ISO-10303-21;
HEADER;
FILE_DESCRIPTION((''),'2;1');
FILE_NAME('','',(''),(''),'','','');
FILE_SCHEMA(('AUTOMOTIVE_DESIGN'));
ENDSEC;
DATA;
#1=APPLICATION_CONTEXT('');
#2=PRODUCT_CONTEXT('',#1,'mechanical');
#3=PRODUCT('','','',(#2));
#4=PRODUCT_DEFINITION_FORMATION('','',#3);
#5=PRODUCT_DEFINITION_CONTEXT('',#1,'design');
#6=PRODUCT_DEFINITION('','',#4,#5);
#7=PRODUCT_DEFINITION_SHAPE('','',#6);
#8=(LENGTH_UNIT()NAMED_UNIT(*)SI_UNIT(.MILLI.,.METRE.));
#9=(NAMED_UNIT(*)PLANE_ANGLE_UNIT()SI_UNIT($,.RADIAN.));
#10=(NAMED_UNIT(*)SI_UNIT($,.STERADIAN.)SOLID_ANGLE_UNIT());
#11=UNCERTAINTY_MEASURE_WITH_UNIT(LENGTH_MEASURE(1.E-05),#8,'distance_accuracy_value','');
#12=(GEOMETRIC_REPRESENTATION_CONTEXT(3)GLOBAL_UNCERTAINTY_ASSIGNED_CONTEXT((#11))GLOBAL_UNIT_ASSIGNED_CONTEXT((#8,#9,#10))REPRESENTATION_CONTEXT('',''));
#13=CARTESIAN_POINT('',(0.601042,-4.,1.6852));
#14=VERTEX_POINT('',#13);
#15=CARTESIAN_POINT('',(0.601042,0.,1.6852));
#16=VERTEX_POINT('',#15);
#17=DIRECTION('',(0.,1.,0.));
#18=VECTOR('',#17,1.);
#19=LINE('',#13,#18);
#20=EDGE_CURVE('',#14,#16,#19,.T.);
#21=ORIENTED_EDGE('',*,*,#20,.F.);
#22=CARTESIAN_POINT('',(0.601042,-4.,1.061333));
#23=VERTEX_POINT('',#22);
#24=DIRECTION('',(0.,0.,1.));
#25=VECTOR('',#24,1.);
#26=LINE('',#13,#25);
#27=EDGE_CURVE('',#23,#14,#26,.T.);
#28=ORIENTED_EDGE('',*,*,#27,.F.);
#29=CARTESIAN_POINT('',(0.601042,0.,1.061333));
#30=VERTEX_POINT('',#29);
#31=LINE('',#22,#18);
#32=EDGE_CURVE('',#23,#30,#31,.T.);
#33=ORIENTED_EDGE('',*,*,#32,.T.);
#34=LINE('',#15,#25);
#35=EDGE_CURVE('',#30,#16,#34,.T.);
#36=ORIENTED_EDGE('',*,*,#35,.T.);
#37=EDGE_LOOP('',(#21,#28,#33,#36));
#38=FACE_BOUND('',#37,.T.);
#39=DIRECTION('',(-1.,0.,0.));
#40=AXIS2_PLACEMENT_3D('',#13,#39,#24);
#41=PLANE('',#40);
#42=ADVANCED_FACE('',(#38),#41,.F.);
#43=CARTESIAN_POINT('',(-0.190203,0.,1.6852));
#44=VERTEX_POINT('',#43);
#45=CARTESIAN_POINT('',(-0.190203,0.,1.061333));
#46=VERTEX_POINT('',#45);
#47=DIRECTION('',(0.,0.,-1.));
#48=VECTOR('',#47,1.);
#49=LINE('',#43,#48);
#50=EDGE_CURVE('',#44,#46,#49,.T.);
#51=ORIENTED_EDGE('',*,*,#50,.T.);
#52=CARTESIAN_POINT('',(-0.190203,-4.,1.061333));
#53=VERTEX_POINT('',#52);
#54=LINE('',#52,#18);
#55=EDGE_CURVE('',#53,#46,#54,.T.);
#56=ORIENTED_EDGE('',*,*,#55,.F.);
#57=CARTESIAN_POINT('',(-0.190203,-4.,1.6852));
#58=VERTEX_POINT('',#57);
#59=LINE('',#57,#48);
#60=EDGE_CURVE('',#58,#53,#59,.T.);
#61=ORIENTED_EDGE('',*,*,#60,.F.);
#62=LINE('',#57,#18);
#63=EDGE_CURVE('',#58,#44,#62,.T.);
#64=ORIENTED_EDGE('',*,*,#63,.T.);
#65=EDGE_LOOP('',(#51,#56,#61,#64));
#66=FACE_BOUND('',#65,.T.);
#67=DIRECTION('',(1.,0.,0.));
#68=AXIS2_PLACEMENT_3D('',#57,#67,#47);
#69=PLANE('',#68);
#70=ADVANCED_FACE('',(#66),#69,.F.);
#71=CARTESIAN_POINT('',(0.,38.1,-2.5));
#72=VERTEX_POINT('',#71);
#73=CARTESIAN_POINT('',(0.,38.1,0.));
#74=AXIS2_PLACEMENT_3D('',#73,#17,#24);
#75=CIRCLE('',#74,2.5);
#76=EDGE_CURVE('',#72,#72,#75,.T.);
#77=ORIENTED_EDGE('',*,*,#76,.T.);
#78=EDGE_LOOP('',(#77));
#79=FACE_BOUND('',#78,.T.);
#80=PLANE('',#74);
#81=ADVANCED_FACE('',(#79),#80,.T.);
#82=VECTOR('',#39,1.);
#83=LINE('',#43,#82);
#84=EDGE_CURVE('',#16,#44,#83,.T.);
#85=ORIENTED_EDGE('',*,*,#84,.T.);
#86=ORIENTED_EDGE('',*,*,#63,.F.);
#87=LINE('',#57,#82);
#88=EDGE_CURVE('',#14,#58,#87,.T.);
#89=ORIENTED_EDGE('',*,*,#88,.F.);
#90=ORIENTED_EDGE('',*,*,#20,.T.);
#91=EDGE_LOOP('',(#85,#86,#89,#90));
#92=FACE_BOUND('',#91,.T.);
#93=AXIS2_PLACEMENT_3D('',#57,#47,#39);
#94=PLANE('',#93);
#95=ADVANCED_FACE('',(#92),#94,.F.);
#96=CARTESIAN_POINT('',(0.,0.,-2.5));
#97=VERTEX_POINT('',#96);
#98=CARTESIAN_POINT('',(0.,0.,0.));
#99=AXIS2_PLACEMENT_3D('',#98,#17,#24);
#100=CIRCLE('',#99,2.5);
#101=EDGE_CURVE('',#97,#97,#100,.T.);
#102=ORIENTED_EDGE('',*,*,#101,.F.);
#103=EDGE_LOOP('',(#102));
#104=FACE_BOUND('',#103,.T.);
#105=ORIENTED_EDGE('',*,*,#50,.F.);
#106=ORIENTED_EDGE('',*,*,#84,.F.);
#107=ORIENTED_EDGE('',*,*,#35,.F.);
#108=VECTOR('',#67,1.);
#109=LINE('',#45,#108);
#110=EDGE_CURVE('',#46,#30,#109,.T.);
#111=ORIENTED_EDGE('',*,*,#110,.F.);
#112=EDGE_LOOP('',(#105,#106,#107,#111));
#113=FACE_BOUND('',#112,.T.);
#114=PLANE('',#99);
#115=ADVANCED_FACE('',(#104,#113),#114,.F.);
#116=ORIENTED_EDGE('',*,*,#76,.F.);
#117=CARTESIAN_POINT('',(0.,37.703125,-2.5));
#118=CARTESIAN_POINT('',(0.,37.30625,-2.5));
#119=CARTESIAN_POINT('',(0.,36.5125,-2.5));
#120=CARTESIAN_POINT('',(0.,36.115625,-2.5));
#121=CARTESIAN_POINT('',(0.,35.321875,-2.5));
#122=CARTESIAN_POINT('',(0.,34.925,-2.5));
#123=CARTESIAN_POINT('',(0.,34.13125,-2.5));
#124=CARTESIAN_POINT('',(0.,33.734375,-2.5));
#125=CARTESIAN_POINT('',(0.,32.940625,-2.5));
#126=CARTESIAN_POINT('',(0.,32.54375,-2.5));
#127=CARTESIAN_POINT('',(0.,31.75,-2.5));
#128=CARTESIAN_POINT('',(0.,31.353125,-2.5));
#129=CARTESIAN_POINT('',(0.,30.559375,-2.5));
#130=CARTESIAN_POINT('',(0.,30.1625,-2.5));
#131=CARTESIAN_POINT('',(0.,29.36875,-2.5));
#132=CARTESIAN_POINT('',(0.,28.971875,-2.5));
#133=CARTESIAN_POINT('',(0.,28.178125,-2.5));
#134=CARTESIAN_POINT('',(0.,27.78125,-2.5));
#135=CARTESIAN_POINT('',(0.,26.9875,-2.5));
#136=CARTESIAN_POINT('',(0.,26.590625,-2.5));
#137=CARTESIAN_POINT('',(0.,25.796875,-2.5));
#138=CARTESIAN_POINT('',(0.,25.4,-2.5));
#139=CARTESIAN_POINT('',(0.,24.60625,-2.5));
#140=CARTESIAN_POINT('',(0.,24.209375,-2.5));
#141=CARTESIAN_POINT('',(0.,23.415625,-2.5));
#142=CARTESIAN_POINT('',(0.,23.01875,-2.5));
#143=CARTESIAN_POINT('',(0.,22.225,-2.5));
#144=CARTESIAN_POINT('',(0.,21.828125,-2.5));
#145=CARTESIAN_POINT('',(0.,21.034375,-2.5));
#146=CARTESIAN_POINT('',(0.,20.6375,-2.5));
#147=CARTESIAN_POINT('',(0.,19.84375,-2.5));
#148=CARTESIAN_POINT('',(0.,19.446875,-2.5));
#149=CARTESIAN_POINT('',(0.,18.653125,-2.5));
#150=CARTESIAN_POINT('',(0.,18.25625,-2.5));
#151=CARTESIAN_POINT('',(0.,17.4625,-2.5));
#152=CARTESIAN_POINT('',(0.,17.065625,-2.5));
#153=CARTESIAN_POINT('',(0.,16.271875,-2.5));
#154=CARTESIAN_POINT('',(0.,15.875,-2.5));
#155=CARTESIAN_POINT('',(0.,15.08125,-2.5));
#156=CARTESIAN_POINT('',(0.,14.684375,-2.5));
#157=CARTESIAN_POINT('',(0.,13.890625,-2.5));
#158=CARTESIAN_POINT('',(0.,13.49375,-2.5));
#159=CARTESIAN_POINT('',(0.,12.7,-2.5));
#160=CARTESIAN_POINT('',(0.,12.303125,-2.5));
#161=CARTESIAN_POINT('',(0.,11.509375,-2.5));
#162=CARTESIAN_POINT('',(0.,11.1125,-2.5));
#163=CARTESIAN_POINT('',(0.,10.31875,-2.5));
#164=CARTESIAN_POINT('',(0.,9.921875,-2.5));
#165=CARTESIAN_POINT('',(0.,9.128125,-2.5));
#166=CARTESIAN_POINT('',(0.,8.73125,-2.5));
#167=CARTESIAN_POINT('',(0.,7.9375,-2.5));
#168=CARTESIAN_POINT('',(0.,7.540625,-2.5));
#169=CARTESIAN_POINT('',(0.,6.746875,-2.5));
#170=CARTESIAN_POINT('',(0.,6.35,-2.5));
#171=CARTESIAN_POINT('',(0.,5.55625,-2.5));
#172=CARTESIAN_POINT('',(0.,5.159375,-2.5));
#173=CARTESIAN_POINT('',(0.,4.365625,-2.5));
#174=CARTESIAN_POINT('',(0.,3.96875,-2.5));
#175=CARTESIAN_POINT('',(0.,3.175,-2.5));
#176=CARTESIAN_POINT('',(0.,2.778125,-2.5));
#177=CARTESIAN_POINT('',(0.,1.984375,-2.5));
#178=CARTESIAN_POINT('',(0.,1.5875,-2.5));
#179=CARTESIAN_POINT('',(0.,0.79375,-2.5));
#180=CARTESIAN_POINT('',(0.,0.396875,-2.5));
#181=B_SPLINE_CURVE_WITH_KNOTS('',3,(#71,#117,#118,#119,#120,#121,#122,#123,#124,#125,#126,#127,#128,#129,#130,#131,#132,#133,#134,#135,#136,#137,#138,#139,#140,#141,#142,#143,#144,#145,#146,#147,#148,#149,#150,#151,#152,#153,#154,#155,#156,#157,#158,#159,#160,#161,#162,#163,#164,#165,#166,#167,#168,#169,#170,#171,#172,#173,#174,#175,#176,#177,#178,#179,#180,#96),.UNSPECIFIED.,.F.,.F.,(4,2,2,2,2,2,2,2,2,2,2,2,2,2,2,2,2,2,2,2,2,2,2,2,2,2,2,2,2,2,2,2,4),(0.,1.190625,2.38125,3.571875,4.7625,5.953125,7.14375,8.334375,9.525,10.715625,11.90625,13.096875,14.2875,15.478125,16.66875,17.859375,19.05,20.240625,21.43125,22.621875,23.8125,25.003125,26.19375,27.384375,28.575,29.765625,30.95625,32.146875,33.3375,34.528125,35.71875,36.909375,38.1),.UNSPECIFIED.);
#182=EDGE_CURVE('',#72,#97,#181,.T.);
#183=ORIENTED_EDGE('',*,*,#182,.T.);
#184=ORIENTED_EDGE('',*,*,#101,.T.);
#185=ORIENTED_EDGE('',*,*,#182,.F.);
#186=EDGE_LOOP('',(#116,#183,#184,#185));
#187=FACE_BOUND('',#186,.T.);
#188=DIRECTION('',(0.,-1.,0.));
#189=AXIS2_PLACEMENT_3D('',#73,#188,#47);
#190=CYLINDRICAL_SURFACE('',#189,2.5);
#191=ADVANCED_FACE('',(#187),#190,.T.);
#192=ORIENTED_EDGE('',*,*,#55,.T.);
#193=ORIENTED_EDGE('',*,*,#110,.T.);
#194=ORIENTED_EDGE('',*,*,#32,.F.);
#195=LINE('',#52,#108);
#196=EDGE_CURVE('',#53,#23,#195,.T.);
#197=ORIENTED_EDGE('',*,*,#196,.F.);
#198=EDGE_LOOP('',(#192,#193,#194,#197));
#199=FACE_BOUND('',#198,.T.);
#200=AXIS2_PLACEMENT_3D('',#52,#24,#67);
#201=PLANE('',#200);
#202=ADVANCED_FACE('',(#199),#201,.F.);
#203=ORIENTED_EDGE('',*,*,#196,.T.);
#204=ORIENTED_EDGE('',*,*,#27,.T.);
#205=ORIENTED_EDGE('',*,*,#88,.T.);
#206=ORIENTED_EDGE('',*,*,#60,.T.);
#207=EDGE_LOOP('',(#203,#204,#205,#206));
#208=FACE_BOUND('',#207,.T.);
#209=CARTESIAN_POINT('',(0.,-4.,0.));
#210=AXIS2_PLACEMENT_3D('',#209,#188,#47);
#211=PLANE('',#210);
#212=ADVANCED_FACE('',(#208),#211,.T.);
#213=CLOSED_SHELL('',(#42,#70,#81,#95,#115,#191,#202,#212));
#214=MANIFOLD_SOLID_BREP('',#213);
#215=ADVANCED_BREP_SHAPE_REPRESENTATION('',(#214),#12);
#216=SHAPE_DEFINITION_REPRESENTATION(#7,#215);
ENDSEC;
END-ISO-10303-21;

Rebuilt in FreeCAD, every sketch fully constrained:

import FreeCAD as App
import Part
import Sketcher
from FreeCAD import Vector
Q = App.Units.Quantity

doc = App.newDocument("Part")
body = doc.addObject("PartDesign::Body", "Body")

# Sketch on XZ plane
sketch1 = body.newObject("Sketcher::SketchObject", "Sketch")
sketch1.AttachmentSupport = (doc.getObject("XZ_Plane"), [""])
sketch1.MapMode = "FlatFace"
sketch1.addGeometry(Part.Circle(Vector(0, 0, 0), Vector(0, 0, 1), 2.5), False)
sketch1.addConstraint([
    Sketcher.Constraint("Coincident", 0, 3, -1, 1),
    Sketcher.Constraint("Diameter", 0, Q("5 mm")),
])
pad1 = body.newObject("PartDesign::Pad", "Pad")
pad1.Profile = sketch1
pad1.Length = 38.1
pad1.Reversed = True

# Sketch on XZ plane
sketch2 = body.newObject("Sketcher::SketchObject", "Sketch001")
sketch2.AttachmentSupport = (doc.getObject("XZ_Plane"), [""])
sketch2.MapMode = "FlatFace"
sketch2.addGeometry([
    Part.LineSegment(Vector(-0.2, 1.7, 0), Vector(-0.2, 1.1, 0)),
    Part.LineSegment(Vector(-0.2, 1.1, 0), Vector(0.6, 1.1, 0)),
    Part.LineSegment(Vector(0.6, 1.1, 0), Vector(0.6, 1.7, 0)),
    Part.LineSegment(Vector(0.6, 1.7, 0), Vector(-0.2, 1.7, 0)),
], False)
sketch2.addConstraint([
    Sketcher.Constraint("Coincident", 0, 2, 1, 1),
    Sketcher.Constraint("Coincident", 1, 2, 2, 1),
    Sketcher.Constraint("Coincident", 2, 2, 3, 1),
    Sketcher.Constraint("Coincident", 3, 2, 0, 1),
    Sketcher.Constraint("Vertical", 0),
    Sketcher.Constraint("Horizontal", 1),
    Sketcher.Constraint("Vertical", 2),
    Sketcher.Constraint("Horizontal", 3),
    Sketcher.Constraint("DistanceY", -1, 1, 2, 2, Q("1.6852 mm")),
    Sketcher.Constraint("DistanceX", 1, 1, 1, 2, Q("0.791245 mm")),
    Sketcher.Constraint("DistanceY", 0, 2, 0, 1, Q("0.623866 mm")),
    Sketcher.Constraint("DistanceX", -1, 1, 1, 2, Q("0.601042 mm")),
])
pad2 = body.newObject("PartDesign::Pad", "Pad001")
pad2.Profile = sketch2
pad2.Length = 4

doc.recompute()
